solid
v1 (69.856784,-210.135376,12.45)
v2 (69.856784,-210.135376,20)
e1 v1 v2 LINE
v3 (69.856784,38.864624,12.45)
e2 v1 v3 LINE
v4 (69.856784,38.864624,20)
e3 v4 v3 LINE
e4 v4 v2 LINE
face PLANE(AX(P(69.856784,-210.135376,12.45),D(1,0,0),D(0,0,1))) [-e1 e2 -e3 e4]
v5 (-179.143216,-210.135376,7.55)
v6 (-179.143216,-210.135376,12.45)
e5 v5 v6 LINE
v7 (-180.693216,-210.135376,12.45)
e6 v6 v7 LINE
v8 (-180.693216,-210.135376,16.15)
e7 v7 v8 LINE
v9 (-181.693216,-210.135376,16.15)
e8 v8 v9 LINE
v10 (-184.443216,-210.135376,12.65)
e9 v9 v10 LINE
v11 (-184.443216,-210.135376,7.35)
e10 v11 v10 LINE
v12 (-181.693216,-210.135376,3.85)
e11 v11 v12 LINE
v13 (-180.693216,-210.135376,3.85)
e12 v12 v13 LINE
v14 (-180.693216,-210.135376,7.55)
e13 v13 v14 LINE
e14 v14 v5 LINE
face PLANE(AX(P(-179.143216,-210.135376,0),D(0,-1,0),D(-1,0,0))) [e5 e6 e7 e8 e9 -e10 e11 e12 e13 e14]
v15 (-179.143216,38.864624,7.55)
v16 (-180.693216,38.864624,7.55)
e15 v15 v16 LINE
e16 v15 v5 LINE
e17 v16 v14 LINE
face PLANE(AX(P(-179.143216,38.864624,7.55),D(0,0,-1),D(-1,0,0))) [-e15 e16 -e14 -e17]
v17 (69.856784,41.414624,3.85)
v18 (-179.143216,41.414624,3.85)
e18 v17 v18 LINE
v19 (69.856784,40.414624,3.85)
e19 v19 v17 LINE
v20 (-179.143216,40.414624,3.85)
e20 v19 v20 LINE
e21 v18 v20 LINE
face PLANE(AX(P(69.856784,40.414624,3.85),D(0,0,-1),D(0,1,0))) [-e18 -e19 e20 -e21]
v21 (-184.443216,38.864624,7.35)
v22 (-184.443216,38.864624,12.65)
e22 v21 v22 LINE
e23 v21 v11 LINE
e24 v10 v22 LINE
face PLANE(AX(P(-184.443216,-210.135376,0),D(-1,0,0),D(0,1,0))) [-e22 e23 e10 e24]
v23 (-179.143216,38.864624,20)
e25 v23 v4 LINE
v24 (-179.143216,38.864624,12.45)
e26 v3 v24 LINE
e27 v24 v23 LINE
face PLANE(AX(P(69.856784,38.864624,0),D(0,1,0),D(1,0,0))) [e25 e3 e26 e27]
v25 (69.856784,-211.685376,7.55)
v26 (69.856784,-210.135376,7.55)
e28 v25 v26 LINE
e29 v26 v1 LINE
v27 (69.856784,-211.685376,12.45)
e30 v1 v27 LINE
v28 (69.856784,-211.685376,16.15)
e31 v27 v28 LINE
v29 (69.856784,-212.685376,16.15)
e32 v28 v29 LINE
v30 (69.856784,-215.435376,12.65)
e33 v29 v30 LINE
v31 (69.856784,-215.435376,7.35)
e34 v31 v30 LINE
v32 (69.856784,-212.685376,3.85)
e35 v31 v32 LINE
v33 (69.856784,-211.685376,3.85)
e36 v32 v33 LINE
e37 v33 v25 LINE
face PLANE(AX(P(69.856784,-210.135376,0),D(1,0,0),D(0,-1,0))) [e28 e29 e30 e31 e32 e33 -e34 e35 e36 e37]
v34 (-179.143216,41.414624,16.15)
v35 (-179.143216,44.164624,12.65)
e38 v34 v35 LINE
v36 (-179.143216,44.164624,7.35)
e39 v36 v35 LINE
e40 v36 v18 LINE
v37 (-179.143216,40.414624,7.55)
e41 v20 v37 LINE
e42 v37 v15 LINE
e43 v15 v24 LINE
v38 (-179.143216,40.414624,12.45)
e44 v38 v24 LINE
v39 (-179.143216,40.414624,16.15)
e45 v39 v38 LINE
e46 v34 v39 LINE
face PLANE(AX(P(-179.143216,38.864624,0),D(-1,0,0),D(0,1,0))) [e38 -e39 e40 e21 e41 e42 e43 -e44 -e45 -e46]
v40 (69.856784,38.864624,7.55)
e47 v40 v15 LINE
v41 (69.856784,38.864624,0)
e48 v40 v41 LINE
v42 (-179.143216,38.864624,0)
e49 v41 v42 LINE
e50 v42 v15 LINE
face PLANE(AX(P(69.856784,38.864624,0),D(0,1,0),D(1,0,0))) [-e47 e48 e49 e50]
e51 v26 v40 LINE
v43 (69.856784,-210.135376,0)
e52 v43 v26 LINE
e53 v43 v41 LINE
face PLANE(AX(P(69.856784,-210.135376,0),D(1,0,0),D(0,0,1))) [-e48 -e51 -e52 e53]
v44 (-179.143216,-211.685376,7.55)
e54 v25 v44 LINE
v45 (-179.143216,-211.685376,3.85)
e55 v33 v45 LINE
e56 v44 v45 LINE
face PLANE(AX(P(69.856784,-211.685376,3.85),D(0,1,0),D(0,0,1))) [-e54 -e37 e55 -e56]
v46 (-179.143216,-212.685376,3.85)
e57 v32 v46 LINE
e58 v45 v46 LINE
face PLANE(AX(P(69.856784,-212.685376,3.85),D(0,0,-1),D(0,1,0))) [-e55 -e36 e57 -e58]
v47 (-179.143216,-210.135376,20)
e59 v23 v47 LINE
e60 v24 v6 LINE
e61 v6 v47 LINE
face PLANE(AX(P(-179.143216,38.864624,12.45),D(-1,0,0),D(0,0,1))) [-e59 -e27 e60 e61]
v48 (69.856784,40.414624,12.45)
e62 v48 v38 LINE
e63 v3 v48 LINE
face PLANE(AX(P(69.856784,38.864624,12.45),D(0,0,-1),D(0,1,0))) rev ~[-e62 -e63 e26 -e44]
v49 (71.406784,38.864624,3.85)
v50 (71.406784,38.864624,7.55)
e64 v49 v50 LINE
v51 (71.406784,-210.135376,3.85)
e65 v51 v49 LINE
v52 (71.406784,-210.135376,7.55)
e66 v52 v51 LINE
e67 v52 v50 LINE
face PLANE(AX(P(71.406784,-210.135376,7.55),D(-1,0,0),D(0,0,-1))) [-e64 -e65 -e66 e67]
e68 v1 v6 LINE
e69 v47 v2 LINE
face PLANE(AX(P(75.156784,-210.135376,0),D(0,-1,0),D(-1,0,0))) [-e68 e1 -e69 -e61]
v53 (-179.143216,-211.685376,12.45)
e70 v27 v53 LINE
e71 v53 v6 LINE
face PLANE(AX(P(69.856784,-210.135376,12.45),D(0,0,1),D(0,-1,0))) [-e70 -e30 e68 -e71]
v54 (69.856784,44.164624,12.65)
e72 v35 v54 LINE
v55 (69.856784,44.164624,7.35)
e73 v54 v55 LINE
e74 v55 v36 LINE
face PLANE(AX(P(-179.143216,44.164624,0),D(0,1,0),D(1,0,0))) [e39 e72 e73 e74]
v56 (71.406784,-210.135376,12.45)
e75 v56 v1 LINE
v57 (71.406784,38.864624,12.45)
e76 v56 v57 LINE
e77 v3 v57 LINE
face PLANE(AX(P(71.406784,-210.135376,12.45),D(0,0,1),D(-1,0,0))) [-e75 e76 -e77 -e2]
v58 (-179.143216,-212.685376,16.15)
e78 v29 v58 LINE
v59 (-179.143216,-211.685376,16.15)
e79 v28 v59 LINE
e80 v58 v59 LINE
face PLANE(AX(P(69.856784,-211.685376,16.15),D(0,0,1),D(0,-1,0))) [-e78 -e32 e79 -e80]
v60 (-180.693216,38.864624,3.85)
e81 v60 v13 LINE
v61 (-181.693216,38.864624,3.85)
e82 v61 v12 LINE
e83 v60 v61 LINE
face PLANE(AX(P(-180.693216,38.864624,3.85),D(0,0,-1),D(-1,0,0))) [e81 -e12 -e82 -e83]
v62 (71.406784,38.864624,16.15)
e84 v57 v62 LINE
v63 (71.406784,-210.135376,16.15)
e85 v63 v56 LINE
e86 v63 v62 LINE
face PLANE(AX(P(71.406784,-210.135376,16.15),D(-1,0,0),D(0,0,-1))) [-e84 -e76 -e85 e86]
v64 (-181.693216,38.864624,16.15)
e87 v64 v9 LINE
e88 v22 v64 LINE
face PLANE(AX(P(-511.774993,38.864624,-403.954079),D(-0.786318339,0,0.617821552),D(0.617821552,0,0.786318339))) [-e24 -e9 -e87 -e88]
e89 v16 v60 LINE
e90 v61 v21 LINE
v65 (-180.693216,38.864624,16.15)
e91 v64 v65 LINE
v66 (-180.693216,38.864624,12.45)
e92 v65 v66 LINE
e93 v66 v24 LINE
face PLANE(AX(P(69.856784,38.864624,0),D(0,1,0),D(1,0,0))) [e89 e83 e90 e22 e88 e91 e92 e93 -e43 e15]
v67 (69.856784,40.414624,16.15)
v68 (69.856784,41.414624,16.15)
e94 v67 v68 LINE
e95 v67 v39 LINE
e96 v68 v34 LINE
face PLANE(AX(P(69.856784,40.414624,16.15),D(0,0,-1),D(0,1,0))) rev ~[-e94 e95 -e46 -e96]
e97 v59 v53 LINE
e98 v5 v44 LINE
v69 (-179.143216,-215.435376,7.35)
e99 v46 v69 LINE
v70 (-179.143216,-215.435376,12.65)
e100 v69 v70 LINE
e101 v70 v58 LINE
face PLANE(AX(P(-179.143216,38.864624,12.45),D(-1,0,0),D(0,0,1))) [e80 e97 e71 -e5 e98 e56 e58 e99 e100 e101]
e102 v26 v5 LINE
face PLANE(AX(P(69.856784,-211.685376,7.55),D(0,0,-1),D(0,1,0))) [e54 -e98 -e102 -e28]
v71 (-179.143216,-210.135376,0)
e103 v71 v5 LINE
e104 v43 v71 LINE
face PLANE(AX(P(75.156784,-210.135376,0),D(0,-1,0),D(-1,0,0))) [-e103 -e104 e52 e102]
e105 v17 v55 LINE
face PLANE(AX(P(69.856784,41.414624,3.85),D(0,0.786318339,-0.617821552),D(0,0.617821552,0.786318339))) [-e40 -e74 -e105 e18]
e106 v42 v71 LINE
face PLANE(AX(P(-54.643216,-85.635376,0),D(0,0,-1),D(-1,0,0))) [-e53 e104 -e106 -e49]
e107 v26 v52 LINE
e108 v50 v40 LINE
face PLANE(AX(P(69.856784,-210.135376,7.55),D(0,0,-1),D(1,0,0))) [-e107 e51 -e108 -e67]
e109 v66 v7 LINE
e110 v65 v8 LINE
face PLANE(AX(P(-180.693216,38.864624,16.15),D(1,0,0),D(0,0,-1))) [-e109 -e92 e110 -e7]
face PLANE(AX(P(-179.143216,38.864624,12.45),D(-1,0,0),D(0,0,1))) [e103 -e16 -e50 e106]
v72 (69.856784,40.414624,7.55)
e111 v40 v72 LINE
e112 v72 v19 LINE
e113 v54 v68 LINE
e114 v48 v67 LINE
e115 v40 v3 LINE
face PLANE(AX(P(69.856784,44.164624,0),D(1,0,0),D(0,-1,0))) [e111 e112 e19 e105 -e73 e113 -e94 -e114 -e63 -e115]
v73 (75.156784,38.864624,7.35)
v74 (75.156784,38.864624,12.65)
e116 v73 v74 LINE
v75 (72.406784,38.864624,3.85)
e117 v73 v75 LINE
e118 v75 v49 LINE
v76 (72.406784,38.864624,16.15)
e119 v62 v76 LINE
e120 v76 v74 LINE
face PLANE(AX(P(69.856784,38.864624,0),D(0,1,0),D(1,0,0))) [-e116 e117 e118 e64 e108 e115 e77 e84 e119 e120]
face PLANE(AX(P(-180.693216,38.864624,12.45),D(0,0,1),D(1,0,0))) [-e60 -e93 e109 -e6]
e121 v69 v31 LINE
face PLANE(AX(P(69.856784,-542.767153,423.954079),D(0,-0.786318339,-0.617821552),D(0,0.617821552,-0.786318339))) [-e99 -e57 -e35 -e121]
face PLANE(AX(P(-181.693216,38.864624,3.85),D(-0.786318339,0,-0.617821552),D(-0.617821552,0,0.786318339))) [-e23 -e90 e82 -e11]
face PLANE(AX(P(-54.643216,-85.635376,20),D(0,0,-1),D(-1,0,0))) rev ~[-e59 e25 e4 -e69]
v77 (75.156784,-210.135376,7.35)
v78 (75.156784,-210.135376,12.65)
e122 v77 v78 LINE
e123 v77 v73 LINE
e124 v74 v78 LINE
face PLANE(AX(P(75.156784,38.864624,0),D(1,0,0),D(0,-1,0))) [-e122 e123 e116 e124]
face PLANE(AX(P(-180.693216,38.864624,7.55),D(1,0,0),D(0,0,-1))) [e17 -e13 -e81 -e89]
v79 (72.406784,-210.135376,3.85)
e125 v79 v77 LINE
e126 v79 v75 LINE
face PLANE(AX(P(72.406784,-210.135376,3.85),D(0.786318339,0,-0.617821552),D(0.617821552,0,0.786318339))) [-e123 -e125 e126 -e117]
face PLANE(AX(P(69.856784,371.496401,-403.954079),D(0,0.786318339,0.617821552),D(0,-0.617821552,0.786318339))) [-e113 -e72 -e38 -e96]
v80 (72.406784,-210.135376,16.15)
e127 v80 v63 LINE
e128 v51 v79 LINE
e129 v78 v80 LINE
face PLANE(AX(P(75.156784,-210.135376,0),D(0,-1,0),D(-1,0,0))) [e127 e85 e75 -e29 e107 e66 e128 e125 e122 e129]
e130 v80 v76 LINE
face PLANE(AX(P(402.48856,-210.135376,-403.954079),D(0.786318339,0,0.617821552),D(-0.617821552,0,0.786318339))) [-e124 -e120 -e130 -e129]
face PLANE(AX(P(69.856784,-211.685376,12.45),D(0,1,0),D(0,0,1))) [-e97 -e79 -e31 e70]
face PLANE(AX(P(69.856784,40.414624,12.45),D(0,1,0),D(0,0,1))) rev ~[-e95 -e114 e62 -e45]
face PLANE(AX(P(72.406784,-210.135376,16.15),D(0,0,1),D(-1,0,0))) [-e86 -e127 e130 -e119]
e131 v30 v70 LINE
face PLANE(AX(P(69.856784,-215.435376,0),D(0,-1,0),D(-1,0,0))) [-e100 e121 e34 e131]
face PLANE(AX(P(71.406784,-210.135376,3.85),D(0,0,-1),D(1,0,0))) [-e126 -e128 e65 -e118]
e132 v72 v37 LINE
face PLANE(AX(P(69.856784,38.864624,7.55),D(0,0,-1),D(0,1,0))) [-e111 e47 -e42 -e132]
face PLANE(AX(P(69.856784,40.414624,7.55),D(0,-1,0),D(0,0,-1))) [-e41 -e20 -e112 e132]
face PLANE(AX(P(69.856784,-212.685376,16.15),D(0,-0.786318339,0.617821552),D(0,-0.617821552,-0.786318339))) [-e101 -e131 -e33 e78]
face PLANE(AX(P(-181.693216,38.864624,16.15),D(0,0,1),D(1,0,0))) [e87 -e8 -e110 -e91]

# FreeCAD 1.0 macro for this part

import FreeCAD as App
import Part
import Sketcher
from FreeCAD import Vector


def add_polygon(sketch, points):
    """Adds a closed chain of lines whose ends are joined by coincident constraints."""
    first, n = sketch.GeometryCount, len(points)
    for a, b in zip(points, points[1:] + points[:1]):
        sketch.addGeometry(Part.LineSegment(App.Vector(*a, 0), App.Vector(*b, 0)), False)
    for i in range(n):
        sketch.addConstraint(Sketcher.Constraint("Coincident", first + i, 2, first + (i + 1) % n, 1))

doc = App.newDocument("Part")
body = doc.addObject("PartDesign::Body", "Body")

sketch1 = body.newObject("Sketcher::SketchObject", "Sketch")
sketch1.AttachmentSupport = (doc.getObject("XY_Plane"), [""])
sketch1.MapMode = "FlatFace"
add_polygon(sketch1, [(70, 44), (-179, 44), (-179, 39), (-184, 39), (-184, -210), (-179, -210), (-179, -215), (70, -215), (70, -210), (75, -210), (75, 39), (70, 39)])
sketch1.addConstraint([
    Sketcher.Constraint("Horizontal", 0),
    Sketcher.Constraint("Vertical", 1),
    Sketcher.Constraint("Horizontal", 2),
    Sketcher.Constraint("Vertical", 3),
    Sketcher.Constraint("Horizontal", 4),
    Sketcher.Constraint("Vertical", 5),
    Sketcher.Constraint("Horizontal", 6),
    Sketcher.Constraint("Vertical", 7),
    Sketcher.Constraint("Horizontal", 8),
    Sketcher.Constraint("Vertical", 9),
    Sketcher.Constraint("Horizontal", 10),
    Sketcher.Constraint("Vertical", 11),
    Sketcher.Constraint("Horizontal", 4, 2, 7, 2),
    Sketcher.Constraint("Horizontal", 2, 2, 9, 2),
    Sketcher.Constraint("Vertical", 1, 2, 4, 2),
    Sketcher.Constraint("Vertical", 7, 2, 10, 2),
    Sketcher.Constraint("Equal", 4, 8),
    Sketcher.Constraint("Equal", 10, 1),
    Sketcher.Constraint("Equal", 6, 3),
    Sketcher.Constraint("Equal", 1, 5),
    Sketcher.Constraint("DistanceX", 0, 2, 0, 1, 249.0),
    Sketcher.Constraint("DistanceX", 2, 2, 2, 1, 5.3),
    Sketcher.Constraint("DistanceX", 0, 2, -1, 1, 179.143216),
    Sketcher.Constraint("DistanceY", -1, 1, 0, 2, 44.164624),
])
pad1 = body.newObject("PartDesign::Pad", "Pad")
pad1.Profile = sketch1
pad1.Length = 20

sketch2 = body.newObject("Sketcher::SketchObject", "Sketch001")
sketch2.AttachmentSupport = (doc.getObject("YZ_Plane"), [""])
sketch2.MapMode = "FlatFace"
sketch2.AttachmentOffset = App.Placement(Vector(0, 0, -179.143216), App.Rotation())
add_polygon(sketch2, [(38.9, -529.8), (38.9, 7.5), (40.4, 7.5), (40.4, 3.9), (41.4, 3.9), (371.5, 424), (1372, 75), (1039.4, -878.8)])
sketch2.addConstraint([
    Sketcher.Constraint("Vertical", 0),
    Sketcher.Constraint("Horizontal", 1),
    Sketcher.Constraint("Vertical", 2),
    Sketcher.Constraint("Horizontal", 3),
    Sketcher.Constraint("Perpendicular", 5, 6),
    Sketcher.Constraint("Perpendicular", 6, 7),
    Sketcher.Constraint("Equal", 5, 7),
    Sketcher.Constraint("DistanceX", 3, 1, 3, 2, 1.0),
    Sketcher.Constraint("DistanceY", 2, 2, 2, 1, 3.7),
    Sketcher.Constraint("DistanceX", 1, 1, 1, 2, 1.55),
    Sketcher.Constraint("DistanceY", -1, 1, 0, 2, 7.55),
    Sketcher.Constraint("DistanceX", -1, 1, 4, 2, 371.496401),
    Sketcher.Constraint("Distance", 5, 1059.632108),
    Sketcher.Constraint("Distance", 6, 1010.109581),
    Sketcher.Constraint("DistanceY", 0, 1, 0, 2, 537.366054),
    Sketcher.Constraint("DistanceY", -1, 1, 4, 2, 423.954079),
])
pocket1 = body.newObject("PartDesign::Pocket", "Pocket")
pocket1.Profile = sketch2
pocket1.Type = "ThroughAll"
pocket1.Midplane = True

sketch3 = body.newObject("Sketcher::SketchObject", "Sketch002")
sketch3.AttachmentSupport = (doc.getObject("YZ_Plane"), [""])
sketch3.MapMode = "FlatFace"
sketch3.AttachmentOffset = App.Placement(Vector(0, 0, -179.143216), App.Rotation())
add_polygon(sketch3, [(38.9, 12.4), (38.9, 549.8), (1039.4, 898.8), (1372, -55), (371.5, -404), (41.4, 16.1), (40.4, 16.1), (40.4, 12.4)])
sketch3.addConstraint([
    Sketcher.Constraint("Vertical", 0),
    Sketcher.Constraint("Horizontal", 5),
    Sketcher.Constraint("Vertical", 6),
    Sketcher.Constraint("Horizontal", 7),
    Sketcher.Constraint("Perpendicular", 1, 2),
    Sketcher.Constraint("Perpendicular", 2, 3),
    Sketcher.Constraint("Equal", 1, 3),
    Sketcher.Constraint("DistanceX", 5, 2, 5, 1, 1.0),
    Sketcher.Constraint("DistanceY", 6, 2, 6, 1, 3.7),
    Sketcher.Constraint("DistanceX", 7, 2, 7, 1, 1.55),
    Sketcher.Constraint("DistanceY", -1, 1, 4, 2, 16.15),
    Sketcher.Constraint("DistanceX", -1, 1, 3, 2, 371.496401),
    Sketcher.Constraint("Distance", 1, 1059.632108),
    Sketcher.Constraint("Distance", 2, 1010.109581),
    Sketcher.Constraint("DistanceY", 0, 1, 0, 2, 537.366054),
    Sketcher.Constraint("DistanceY", -1, 1, 1, 2, 898.755731),
])
pocket2 = body.newObject("PartDesign::Pocket", "Pocket001")
pocket2.Profile = sketch3
pocket2.Type = "ThroughAll"
pocket2.Midplane = True

sketch4 = body.newObject("Sketcher::SketchObject", "Sketch003")
sketch4.AttachmentSupport = (doc.getObject("XZ_Plane"), [""])
sketch4.MapMode = "FlatFace"
sketch4.AttachmentOffset = App.Placement(Vector(0, 0, 210.135376), App.Rotation())
add_polygon(sketch4, [(-179.1, -529.8), (-179.1, 7.5), (-180.7, 7.5), (-180.7, 3.9), (-181.7, 3.9), (-511.8, 424), (-1512.3, 75), (-1179.7, -878.8)])
sketch4.addConstraint([
    Sketcher.Constraint("Vertical", 0),
    Sketcher.Constraint("Horizontal", 1),
    Sketcher.Constraint("Vertical", 2),
    Sketcher.Constraint("Horizontal", 3),
    Sketcher.Constraint("Perpendicular", 5, 6),
    Sketcher.Constraint("Perpendicular", 6, 7),
    Sketcher.Constraint("Equal", 5, 7),
    Sketcher.Constraint("DistanceX", 3, 2, 3, 1, 1.0),
    Sketcher.Constraint("DistanceY", 2, 2, 2, 1, 3.7),
    Sketcher.Constraint("DistanceX", 1, 2, 1, 1, 1.55),
    Sketcher.Constraint("DistanceY", -1, 1, 0, 2, 7.55),
    Sketcher.Constraint("Distance", 5, 1059.632108),
    Sketcher.Constraint("Distance", 6, 1010.109581),
    Sketcher.Constraint("DistanceY", 0, 1, 0, 2, 537.366054),
    Sketcher.Constraint("DistanceY", -1, 1, 4, 2, 423.954079),
    Sketcher.Constraint("DistanceX", 6, 2, -1, 1, 1179.673729),
])
pocket3 = body.newObject("PartDesign::Pocket", "Pocket002")
pocket3.Profile = sketch4
pocket3.Type = "ThroughAll"
pocket3.Midplane = True

sketch5 = body.newObject("Sketcher::SketchObject", "Sketch004")
sketch5.AttachmentSupport = (doc.getObject("XZ_Plane"), [""])
sketch5.MapMode = "FlatFace"
sketch5.AttachmentOffset = App.Placement(Vector(0, 0, 210.135376), App.Rotation())
add_polygon(sketch5, [(-511.8, -404), (-181.7, 16.1), (-180.7, 16.1), (-180.7, 12.4), (-179.1, 12.4), (-179.1, 549.8), (-1179.7, 898.8), (-1512.3, -55)])
sketch5.addConstraint([
    Sketcher.Constraint("Horizontal", 1),
    Sketcher.Constraint("Vertical", 2),
    Sketcher.Constraint("Horizontal", 3),
    Sketcher.Constraint("Vertical", 4),
    Sketcher.Constraint("Perpendicular", 5, 6),
    Sketcher.Constraint("Perpendicular", 6, 7),
    Sketcher.Constraint("Equal", 5, 7),
    Sketcher.Constraint("DistanceX", 1, 1, 1, 2, 1.0),
    Sketcher.Constraint("DistanceY", 2, 2, 2, 1, 3.7),
    Sketcher.Constraint("DistanceX", 3, 1, 3, 2, 1.55),
    Sketcher.Constraint("DistanceY", -1, 1, 0, 2, 16.15),
    Sketcher.Constraint("Distance", 5, 1059.632108),
    Sketcher.Constraint("Distance", 6, 1010.109581),
    Sketcher.Constraint("DistanceY", 4, 1, 4, 2, 537.366054),
    Sketcher.Constraint("DistanceX", 5, 2, -1, 1, 1179.673729),
    Sketcher.Constraint("DistanceY", -1, 1, 5, 2, 898.755731),
])
pocket4 = body.newObject("PartDesign::Pocket", "Pocket003")
pocket4.Profile = sketch5
pocket4.Type = "ThroughAll"
pocket4.Midplane = True

sketch6 = body.newObject("Sketcher::SketchObject", "Sketch005")
sketch6.AttachmentSupport = (doc.getObject("YZ_Plane"), [""])
sketch6.MapMode = "FlatFace"
sketch6.AttachmentOffset = App.Placement(Vector(0, 0, -179.143216), App.Rotation())
add_polygon(sketch6, [(-210.1, 20), (-210.1, 12.4), (-211.7, 12.4), (-211.7, 16.1), (-212.7, 16.1), (-215.4, 12.7), (-215.4, 20)])
sketch6.addConstraint([
    Sketcher.Constraint("Vertical", 0),
    Sketcher.Constraint("Horizontal", 1),
    Sketcher.Constraint("Vertical", 2),
    Sketcher.Constraint("Horizontal", 3),
    Sketcher.Constraint("Vertical", 5),
    Sketcher.Constraint("Horizontal", 6),
    Sketcher.Constraint("DistanceX", 3, 2, 3, 1, 1.0),
    Sketcher.Constraint("DistanceX", 6, 1, 6, 2, 5.3),
    Sketcher.Constraint("DistanceY", 2, 1, 2, 2, 3.7),
    Sketcher.Constraint("DistanceY", -1, 1, 5, 2, 20.0),
    Sketcher.Constraint("DistanceX", 1, 2, 1, 1, 1.55),
    Sketcher.Constraint("DistanceY", 0, 2, 0, 1, 7.55),
    Sketcher.Constraint("DistanceY", 5, 1, 5, 2, 7.35),
    Sketcher.Constraint("DistanceX", 0, 2, -1, 1, 210.135376),
])
pocket5 = body.newObject("PartDesign::Pocket", "Pocket004")
pocket5.Profile = sketch6
pocket5.Type = "ThroughAll"
pocket5.Midplane = True

sketch7 = body.newObject("Sketcher::SketchObject", "Sketch006")
sketch7.AttachmentSupport = (doc.getObject("YZ_Plane"), [""])
sketch7.MapMode = "FlatFace"
sketch7.AttachmentOffset = App.Placement(Vector(0, 0, -179.143216), App.Rotation())
add_polygon(sketch7, [(-542.8, 424), (-212.7, 3.9), (-211.7, 3.9), (-211.7, 7.5), (-210.1, 7.5), (-210.1, -529.8), (-1210.7, -878.8), (-1543.3, 75)])
sketch7.addConstraint([
    Sketcher.Constraint("Horizontal", 1),
    Sketcher.Constraint("Vertical", 2),
    Sketcher.Constraint("Horizontal", 3),
    Sketcher.Constraint("Vertical", 4),
    Sketcher.Constraint("Perpendicular", 5, 6),
    Sketcher.Constraint("Perpendicular", 6, 7),
    Sketcher.Constraint("Equal", 5, 7),
    Sketcher.Constraint("DistanceX", 1, 1, 1, 2, 1.0),
    Sketcher.Constraint("DistanceY", 2, 1, 2, 2, 3.7),
    Sketcher.Constraint("DistanceX", 3, 1, 3, 2, 1.55),
    Sketcher.Constraint("DistanceY", -1, 1, 0, 2, 3.85),
    Sketcher.Constraint("Distance", 5, 1059.632108),
    Sketcher.Constraint("Distance", 6, 1010.109581),
    Sketcher.Constraint("DistanceY", 4, 2, 4, 1, 537.366054),
    Sketcher.Constraint("DistanceX", 5, 2, -1, 1, 1210.665888),
    Sketcher.Constraint("DistanceY", 5, 2, -1, 1, 878.755731),
])
pocket6 = body.newObject("PartDesign::Pocket", "Pocket005")
pocket6.Profile = sketch7
pocket6.Type = "ThroughAll"
pocket6.Midplane = True

sketch8 = body.newObject("Sketcher::SketchObject", "Sketch007")
sketch8.AttachmentSupport = (doc.getObject("XZ_Plane"), [""])
sketch8.MapMode = "FlatFace"
sketch8.AttachmentOffset = App.Placement(Vector(0, 0, -38.864624), App.Rotation())
add_polygon(sketch8, [(69.9, 0), (69.9, 7.5), (71.4, 7.5), (71.4, 3.9), (72.4, 3.9), (75.2, 7.3), (75.2, 0)])
sketch8.addConstraint([
    Sketcher.Constraint("Vertical", 0),
    Sketcher.Constraint("Horizontal", 1),
    Sketcher.Constraint("Vertical", 2),
    Sketcher.Constraint("Horizontal", 3),
    Sketcher.Constraint("Vertical", 5),
    Sketcher.Constraint("Horizontal", 6),
    Sketcher.Constraint("PointOnObject", 5, 2, -1),
    Sketcher.Constraint("DistanceX", 3, 1, 3, 2, 1.0),
    Sketcher.Constraint("DistanceX", 6, 2, 6, 1, 5.3),
    Sketcher.Constraint("DistanceY", 2, 2, 2, 1, 3.7),
    Sketcher.Constraint("DistanceX", 1, 1, 1, 2, 1.55),
    Sketcher.Constraint("DistanceY", 0, 1, 0, 2, 7.55),
    Sketcher.Constraint("DistanceY", 5, 2, 5, 1, 7.35),
    Sketcher.Constraint("DistanceX", -1, 1, 0, 2, 69.856784),
])
pocket7 = body.newObject("PartDesign::Pocket", "Pocket006")
pocket7.Profile = sketch8
pocket7.Type = "ThroughAll"
pocket7.Midplane = True

sketch9 = body.newObject("Sketcher::SketchObject", "Sketch008")
sketch9.AttachmentSupport = (doc.getObject("XZ_Plane"), [""])
sketch9.MapMode = "FlatFace"
sketch9.AttachmentOffset = App.Placement(Vector(0, 0, -38.864624), App.Rotation())
add_polygon(sketch9, [(402.5, -404), (72.4, 16.1), (71.4, 16.1), (71.4, 12.4), (69.9, 12.4), (69.9, 549.8), (1070.4, 898.8), (1403, -55)])
sketch9.addConstraint([
    Sketcher.Constraint("Horizontal", 1),
    Sketcher.Constraint("Vertical", 2),
    Sketcher.Constraint("Horizontal", 3),
    Sketcher.Constraint("Vertical", 4),
    Sketcher.Constraint("Perpendicular", 5, 6),
    Sketcher.Constraint("Perpendicular", 6, 7),
    Sketcher.Constraint("Equal", 5, 7),
    Sketcher.Constraint("DistanceX", 1, 2, 1, 1, 1.0),
    Sketcher.Constraint("DistanceY", 2, 2, 2, 1, 3.7),
    Sketcher.Constraint("DistanceX", 3, 2, 3, 1, 1.55),
    Sketcher.Constraint("DistanceY", -1, 1, 0, 2, 16.15),
    Sketcher.Constraint("Distance", 5, 1059.632108),
    Sketcher.Constraint("Distance", 6, 1010.109581),
    Sketcher.Constraint("DistanceY", 4, 1, 4, 2, 537.366054),
    Sketcher.Constraint("DistanceY", -1, 1, 5, 2, 898.755731),
    Sketcher.Constraint("DistanceX", -1, 1, 7, 2, 402.48856),
])
pocket8 = body.newObject("PartDesign::Pocket", "Pocket007")
pocket8.Profile = sketch9
pocket8.Type = "ThroughAll"
pocket8.Midplane = True

doc.recompute()
